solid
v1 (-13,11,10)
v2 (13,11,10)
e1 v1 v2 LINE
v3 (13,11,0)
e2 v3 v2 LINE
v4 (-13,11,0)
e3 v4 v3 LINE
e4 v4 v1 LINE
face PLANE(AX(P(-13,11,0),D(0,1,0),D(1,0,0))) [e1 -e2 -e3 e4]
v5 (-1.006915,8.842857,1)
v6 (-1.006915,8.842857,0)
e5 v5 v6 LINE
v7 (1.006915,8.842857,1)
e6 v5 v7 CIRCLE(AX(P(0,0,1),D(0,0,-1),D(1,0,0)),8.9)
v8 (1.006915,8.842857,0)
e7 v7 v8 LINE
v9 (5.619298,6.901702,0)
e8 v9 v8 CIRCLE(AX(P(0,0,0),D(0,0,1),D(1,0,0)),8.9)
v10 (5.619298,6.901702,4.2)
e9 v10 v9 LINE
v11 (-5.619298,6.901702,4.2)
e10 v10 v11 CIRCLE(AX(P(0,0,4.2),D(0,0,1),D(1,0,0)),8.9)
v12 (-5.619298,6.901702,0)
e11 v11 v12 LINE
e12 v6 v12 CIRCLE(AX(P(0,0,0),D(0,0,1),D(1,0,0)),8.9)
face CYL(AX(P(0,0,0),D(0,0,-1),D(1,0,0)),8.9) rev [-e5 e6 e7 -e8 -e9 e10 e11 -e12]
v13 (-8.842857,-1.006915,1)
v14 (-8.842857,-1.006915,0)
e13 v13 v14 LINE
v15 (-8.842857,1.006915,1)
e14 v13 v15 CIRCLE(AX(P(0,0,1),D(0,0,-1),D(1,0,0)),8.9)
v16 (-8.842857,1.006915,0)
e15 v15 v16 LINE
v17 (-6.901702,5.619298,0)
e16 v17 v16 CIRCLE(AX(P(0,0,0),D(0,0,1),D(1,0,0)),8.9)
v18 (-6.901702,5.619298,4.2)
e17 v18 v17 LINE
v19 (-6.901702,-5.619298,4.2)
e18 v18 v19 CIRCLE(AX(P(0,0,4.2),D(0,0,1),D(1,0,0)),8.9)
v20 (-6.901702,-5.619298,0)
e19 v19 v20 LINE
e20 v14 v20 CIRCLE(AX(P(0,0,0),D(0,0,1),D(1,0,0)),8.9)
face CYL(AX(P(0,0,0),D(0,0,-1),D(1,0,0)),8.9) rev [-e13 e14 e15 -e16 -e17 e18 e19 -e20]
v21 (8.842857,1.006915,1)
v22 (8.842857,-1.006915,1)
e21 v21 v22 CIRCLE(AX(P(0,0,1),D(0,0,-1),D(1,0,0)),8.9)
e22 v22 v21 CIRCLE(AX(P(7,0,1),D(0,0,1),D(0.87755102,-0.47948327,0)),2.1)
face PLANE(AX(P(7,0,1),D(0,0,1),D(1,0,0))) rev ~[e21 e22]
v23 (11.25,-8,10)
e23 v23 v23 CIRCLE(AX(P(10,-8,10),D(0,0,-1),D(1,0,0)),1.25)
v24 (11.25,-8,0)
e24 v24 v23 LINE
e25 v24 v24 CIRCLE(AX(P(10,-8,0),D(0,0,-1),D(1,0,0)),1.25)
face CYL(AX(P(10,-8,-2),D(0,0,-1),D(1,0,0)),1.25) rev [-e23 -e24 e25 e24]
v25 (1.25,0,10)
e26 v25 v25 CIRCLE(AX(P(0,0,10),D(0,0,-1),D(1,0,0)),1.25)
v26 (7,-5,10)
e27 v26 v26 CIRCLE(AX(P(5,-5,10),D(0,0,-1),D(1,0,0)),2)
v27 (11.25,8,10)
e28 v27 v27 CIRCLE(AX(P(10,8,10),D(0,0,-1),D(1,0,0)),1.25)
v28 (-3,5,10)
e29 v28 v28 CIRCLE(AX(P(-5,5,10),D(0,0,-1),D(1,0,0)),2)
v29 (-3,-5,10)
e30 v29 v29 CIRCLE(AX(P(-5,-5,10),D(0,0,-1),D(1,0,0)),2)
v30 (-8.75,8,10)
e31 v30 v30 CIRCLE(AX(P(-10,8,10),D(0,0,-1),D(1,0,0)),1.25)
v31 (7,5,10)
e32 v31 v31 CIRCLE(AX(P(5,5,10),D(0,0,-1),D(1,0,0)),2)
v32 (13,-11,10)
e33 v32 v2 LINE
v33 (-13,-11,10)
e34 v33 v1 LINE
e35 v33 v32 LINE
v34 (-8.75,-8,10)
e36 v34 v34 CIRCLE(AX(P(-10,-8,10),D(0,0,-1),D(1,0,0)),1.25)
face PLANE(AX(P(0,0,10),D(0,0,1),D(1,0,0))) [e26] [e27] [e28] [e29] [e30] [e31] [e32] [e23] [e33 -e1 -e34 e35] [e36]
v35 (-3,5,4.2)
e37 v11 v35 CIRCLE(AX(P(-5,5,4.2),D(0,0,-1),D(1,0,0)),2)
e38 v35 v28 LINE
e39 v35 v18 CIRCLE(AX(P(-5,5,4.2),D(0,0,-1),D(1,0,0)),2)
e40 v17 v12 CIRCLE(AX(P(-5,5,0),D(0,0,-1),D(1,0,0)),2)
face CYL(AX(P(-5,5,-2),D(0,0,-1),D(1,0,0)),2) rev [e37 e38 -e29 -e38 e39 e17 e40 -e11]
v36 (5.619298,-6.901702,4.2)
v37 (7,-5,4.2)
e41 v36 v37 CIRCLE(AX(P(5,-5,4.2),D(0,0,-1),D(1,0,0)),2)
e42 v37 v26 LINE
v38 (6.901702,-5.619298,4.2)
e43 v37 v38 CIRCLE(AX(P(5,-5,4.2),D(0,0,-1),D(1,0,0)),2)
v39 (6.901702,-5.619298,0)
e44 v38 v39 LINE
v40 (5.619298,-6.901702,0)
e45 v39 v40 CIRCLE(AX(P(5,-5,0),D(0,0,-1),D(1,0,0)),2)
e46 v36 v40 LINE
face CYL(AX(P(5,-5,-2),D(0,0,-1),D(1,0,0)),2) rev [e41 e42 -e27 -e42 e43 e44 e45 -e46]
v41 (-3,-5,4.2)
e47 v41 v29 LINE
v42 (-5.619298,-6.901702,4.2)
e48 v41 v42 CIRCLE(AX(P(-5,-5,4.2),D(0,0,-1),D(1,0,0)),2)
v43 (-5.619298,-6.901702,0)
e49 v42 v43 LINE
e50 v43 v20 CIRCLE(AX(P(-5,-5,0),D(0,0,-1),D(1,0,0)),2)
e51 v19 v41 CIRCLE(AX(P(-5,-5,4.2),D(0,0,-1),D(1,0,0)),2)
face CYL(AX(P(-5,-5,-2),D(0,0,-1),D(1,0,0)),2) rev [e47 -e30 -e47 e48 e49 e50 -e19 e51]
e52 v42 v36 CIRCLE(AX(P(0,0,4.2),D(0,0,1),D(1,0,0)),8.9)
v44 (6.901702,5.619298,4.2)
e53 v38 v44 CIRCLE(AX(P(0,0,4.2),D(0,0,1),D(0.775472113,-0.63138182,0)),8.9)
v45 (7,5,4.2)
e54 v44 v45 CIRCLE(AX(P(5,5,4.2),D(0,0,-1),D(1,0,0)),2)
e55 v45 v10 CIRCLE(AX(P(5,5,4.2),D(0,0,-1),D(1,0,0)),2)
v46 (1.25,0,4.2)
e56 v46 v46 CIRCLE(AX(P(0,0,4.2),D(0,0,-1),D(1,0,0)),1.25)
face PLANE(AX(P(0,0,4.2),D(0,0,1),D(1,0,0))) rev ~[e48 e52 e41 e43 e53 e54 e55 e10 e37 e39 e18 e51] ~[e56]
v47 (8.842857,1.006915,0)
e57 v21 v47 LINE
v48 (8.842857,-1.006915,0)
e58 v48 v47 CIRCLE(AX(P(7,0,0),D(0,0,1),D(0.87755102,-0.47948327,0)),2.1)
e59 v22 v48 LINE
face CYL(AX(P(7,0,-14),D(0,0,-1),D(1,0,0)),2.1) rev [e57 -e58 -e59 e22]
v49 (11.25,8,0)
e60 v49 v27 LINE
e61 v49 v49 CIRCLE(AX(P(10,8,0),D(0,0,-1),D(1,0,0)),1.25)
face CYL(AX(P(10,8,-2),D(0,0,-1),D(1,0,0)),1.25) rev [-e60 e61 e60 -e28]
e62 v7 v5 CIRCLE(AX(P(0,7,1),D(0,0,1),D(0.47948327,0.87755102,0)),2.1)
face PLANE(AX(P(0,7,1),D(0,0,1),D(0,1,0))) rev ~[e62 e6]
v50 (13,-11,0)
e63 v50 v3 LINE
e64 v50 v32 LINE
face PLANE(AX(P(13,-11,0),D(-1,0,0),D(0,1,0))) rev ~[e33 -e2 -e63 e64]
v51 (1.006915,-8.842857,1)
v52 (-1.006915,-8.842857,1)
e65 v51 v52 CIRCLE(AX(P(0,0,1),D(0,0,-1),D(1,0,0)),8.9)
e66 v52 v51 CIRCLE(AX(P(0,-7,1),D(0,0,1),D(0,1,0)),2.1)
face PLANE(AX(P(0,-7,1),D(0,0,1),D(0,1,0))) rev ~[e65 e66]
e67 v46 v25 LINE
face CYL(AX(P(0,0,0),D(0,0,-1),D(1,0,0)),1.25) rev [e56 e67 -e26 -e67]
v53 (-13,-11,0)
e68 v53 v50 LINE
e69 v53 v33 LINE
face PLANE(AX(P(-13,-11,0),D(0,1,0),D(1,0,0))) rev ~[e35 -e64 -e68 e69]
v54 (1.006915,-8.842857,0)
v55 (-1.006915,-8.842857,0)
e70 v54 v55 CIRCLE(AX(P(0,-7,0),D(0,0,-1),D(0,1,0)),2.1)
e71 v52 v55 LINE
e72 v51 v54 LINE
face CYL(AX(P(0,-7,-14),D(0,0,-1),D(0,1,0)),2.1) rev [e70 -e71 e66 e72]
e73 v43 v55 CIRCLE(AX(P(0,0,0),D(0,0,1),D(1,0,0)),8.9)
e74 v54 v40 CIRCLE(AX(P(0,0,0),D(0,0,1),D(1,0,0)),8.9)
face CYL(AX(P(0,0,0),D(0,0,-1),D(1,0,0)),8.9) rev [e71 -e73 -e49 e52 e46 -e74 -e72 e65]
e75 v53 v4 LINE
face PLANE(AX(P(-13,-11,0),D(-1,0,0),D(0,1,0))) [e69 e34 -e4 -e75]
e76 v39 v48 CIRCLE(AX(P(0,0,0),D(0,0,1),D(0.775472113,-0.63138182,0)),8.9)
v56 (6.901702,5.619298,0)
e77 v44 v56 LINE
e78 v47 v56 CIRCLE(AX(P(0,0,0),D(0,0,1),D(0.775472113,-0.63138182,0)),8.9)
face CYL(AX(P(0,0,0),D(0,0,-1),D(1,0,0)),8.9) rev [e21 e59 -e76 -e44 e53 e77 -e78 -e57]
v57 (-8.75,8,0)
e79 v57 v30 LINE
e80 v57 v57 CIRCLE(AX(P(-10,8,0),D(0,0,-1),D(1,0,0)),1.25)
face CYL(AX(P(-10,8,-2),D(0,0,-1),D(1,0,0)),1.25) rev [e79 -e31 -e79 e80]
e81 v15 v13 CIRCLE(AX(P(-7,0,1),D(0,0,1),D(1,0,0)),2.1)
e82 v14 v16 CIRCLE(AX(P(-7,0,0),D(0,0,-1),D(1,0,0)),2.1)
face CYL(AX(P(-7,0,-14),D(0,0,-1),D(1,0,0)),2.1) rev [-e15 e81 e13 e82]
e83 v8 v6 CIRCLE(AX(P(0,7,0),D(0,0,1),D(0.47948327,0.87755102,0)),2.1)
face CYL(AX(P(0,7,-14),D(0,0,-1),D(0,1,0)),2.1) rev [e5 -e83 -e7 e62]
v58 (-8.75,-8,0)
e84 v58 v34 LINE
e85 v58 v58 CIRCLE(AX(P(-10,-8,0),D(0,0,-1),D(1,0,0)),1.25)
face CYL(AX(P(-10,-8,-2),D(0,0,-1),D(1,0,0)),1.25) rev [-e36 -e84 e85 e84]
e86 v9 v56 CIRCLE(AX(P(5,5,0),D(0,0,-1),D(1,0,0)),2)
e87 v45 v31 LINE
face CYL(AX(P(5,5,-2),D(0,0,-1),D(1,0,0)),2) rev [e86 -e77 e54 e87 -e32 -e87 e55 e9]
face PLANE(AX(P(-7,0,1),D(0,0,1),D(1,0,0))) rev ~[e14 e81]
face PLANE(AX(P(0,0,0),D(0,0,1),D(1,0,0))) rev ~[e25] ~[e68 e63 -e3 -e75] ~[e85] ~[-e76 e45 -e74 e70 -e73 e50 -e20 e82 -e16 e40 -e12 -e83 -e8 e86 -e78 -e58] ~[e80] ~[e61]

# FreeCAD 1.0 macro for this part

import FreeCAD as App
import Part
import Sketcher

V = App.Vector
Q = App.Units.Quantity

doc = App.newDocument("Part")
body = doc.addObject("PartDesign::Body", "Body")

sketch1 = body.newObject("Sketcher::SketchObject", "Sketch")
sketch1.AttachmentSupport = (doc.getObject("XY_Plane"), [""])
sketch1.MapMode = "FlatFace"
sketch1.addGeometry(Part.Circle(V(7, 0, 0), V(0, 0, 1), 2.1), False)
sketch1.addConstraint(Sketcher.Constraint("PointOnObject", 0, 3, -1))
sketch1.addConstraint(Sketcher.Constraint("Diameter", 0, Q("4.2 mm")))
sketch1.addConstraint(Sketcher.Constraint("DistanceX", -1, 1, 0, 3, Q("7 mm")))
pad1 = body.newObject("PartDesign::Pad", "Pad")
pad1.Profile = sketch1
pad1.Length = 15
body2 = doc.addObject("PartDesign::Body", "Body001")
body2.AllowCompound = True

sketch2 = body2.newObject("Sketcher::SketchObject", "Sketch001")
sketch2.AttachmentSupport = (doc.getObject("XY_Plane001"), [""])
sketch2.MapMode = "FlatFace"
sketch2.addGeometry(Part.Circle(V(-7, 0, 0), V(0, 0, 1), 2.1), False)
sketch2.addConstraint(Sketcher.Constraint("PointOnObject", 0, 3, -1))
sketch2.addConstraint(Sketcher.Constraint("Diameter", 0, Q("4.2 mm")))
sketch2.addConstraint(Sketcher.Constraint("DistanceX", 0, 3, -1, 1, Q("7 mm")))
pad2 = body2.newObject("PartDesign::Pad", "Pad001")
pad2.Profile = sketch2
pad2.Length = 15
doc.recompute()

boolean = body2.newObject("PartDesign::Boolean", "Boolean")
boolean.Type = "Fuse"
boolean.addObjects([body])
body3 = doc.addObject("PartDesign::Body", "Body002")

sketch3 = body3.newObject("Sketcher::SketchObject", "Sketch002")
sketch3.AttachmentSupport = (doc.getObject("XY_Plane002"), [""])
sketch3.MapMode = "FlatFace"
sketch3.addGeometry(Part.Circle(V(7, 0, 0), V(0, 0, 1), 2.1), False)
sketch3.addConstraint(Sketcher.Constraint("PointOnObject", 0, 3, -1))
sketch3.addConstraint(Sketcher.Constraint("Diameter", 0, Q("4.2 mm")))
sketch3.addConstraint(Sketcher.Constraint("DistanceX", -1, 1, 0, 3, Q("7 mm")))
pad3 = body3.newObject("PartDesign::Pad", "Pad002")
pad3.Profile = sketch3
pad3.Length = 15
body4 = doc.addObject("PartDesign::Body", "Body003")
body4.AllowCompound = True

sketch4 = body4.newObject("Sketcher::SketchObject", "Sketch003")
sketch4.AttachmentSupport = (doc.getObject("XY_Plane003"), [""])
sketch4.MapMode = "FlatFace"
sketch4.addGeometry(Part.Circle(V(-7, 0, 0), V(0, 0, 1), 2.1), False)
sketch4.addConstraint(Sketcher.Constraint("PointOnObject", 0, 3, -1))
sketch4.addConstraint(Sketcher.Constraint("Diameter", 0, Q("4.2 mm")))
sketch4.addConstraint(Sketcher.Constraint("DistanceX", 0, 3, -1, 1, Q("7 mm")))
pad4 = body4.newObject("PartDesign::Pad", "Pad003")
pad4.Profile = sketch4
pad4.Length = 15
doc.recompute()

boolean2 = body4.newObject("PartDesign::Boolean", "Boolean001")
boolean2.Type = "Fuse"
boolean2.addObjects([body3])
body5 = doc.addObject("PartDesign::Body", "Body004")
body5.AllowCompound = True
doc.recompute()

body4.Placement = App.Placement(V(0, 0, 0), App.Rotation(V(0, 0, 1), 90))
boolean3 = body5.newObject("PartDesign::Boolean", "Boolean002")
boolean3.Type = "Fuse"
boolean3.addObjects([body4])
doc.recompute()

boolean4 = body5.newObject("PartDesign::Boolean", "Boolean003")
boolean4.Type = "Fuse"
boolean4.addObjects([body2])
body6 = doc.addObject("PartDesign::Body", "Body005")
body6.AllowCompound = True
doc.recompute()

body5.Placement = App.Placement(V(0, 0, -14), App.Rotation(V(0, 0, 1), 0))
boolean5 = body6.newObject("PartDesign::Boolean", "Boolean004")
boolean5.Type = "Fuse"
boolean5.addObjects([body5])
body7 = doc.addObject("PartDesign::Body", "Body006")

sketch5 = body7.newObject("Sketcher::SketchObject", "Sketch004")
sketch5.AttachmentSupport = (doc.getObject("XY_Plane006"), [""])
sketch5.MapMode = "FlatFace"
sketch5.AttachmentOffset = App.Placement(V(0, 0, -2), App.Rotation())
sketch5.addGeometry(Part.Circle(V(5, 5, 0), V(0, 0, 1), 2), False)
sketch5.addConstraint(Sketcher.Constraint("Diameter", 0, Q("4 mm")))
sketch5.addConstraint(Sketcher.Constraint("DistanceX", -1, 1, 0, 3, Q("5 mm")))
sketch5.addConstraint(Sketcher.Constraint("DistanceY", -1, 1, 0, 3, Q("5 mm")))
pad5 = body7.newObject("PartDesign::Pad", "Pad004")
pad5.Profile = sketch5
pad5.Length = 15
body8 = doc.addObject("PartDesign::Body", "Body007")

sketch6 = body8.newObject("Sketcher::SketchObject", "Sketch005")
sketch6.AttachmentSupport = (doc.getObject("XY_Plane007"), [""])
sketch6.MapMode = "FlatFace"
sketch6.AttachmentOffset = App.Placement(V(0, 0, -2), App.Rotation())
sketch6.addGeometry(Part.Circle(V(5, -5, 0), V(0, 0, 1), 2), False)
sketch6.addConstraint(Sketcher.Constraint("Diameter", 0, Q("4 mm")))
sketch6.addConstraint(Sketcher.Constraint("DistanceX", -1, 1, 0, 3, Q("5 mm")))
sketch6.addConstraint(Sketcher.Constraint("DistanceY", 0, 3, -1, 1, Q("5 mm")))
pad6 = body8.newObject("PartDesign::Pad", "Pad005")
pad6.Profile = sketch6
pad6.Length = 15
body9 = doc.addObject("PartDesign::Body", "Body008")

sketch7 = body9.newObject("Sketcher::SketchObject", "Sketch006")
sketch7.AttachmentSupport = (doc.getObject("XY_Plane008"), [""])
sketch7.MapMode = "FlatFace"
sketch7.AttachmentOffset = App.Placement(V(0, 0, -2), App.Rotation())
sketch7.addGeometry(Part.Circle(V(-5, -5, 0), V(0, 0, 1), 2), False)
sketch7.addConstraint(Sketcher.Constraint("Diameter", 0, Q("4 mm")))
sketch7.addConstraint(Sketcher.Constraint("DistanceX", 0, 3, -1, 1, Q("5 mm")))
sketch7.addConstraint(Sketcher.Constraint("DistanceY", 0, 3, -1, 1, Q("5 mm")))
pad7 = body9.newObject("PartDesign::Pad", "Pad006")
pad7.Profile = sketch7
pad7.Length = 15
body10 = doc.addObject("PartDesign::Body", "Body009")
body10.AllowCompound = True

sketch8 = body10.newObject("Sketcher::SketchObject", "Sketch007")
sketch8.AttachmentSupport = (doc.getObject("XY_Plane009"), [""])
sketch8.MapMode = "FlatFace"
sketch8.AttachmentOffset = App.Placement(V(0, 0, -2), App.Rotation())
sketch8.addGeometry(Part.Circle(V(-5, 5, 0), V(0, 0, 1), 2), False)
sketch8.addConstraint(Sketcher.Constraint("Diameter", 0, Q("4 mm")))
sketch8.addConstraint(Sketcher.Constraint("DistanceX", 0, 3, -1, 1, Q("5 mm")))
sketch8.addConstraint(Sketcher.Constraint("DistanceY", -1, 1, 0, 3, Q("5 mm")))
pad8 = body10.newObject("PartDesign::Pad", "Pad007")
pad8.Profile = sketch8
pad8.Length = 15
doc.recompute()

boolean6 = body10.newObject("PartDesign::Boolean", "Boolean005")
boolean6.Type = "Fuse"
boolean6.addObjects([body7])
doc.recompute()

boolean7 = body10.newObject("PartDesign::Boolean", "Boolean006")
boolean7.Type = "Fuse"
boolean7.addObjects([body8])
doc.recompute()

boolean8 = body10.newObject("PartDesign::Boolean", "Boolean007")
boolean8.Type = "Fuse"
boolean8.addObjects([body9])
body11 = doc.addObject("PartDesign::Body", "Body010")

sketch9 = body11.newObject("Sketcher::SketchObject", "Sketch008")
sketch9.AttachmentSupport = (doc.getObject("XY_Plane010"), [""])
sketch9.MapMode = "FlatFace"
sketch9.AttachmentOffset = App.Placement(V(0, 0, -2), App.Rotation())
sketch9.addGeometry(Part.Circle(V(10, -8, 0), V(0, 0, 1), 1.2), False)
sketch9.addConstraint(Sketcher.Constraint("Diameter", 0, Q("2.5 mm")))
sketch9.addConstraint(Sketcher.Constraint("DistanceX", -1, 1, 0, 3, Q("10 mm")))
sketch9.addConstraint(Sketcher.Constraint("DistanceY", 0, 3, -1, 1, Q("8 mm")))
pad9 = body11.newObject("PartDesign::Pad", "Pad008")
pad9.Profile = sketch9
pad9.Length = 15
body12 = doc.addObject("PartDesign::Body", "Body011")

sketch10 = body12.newObject("Sketcher::SketchObject", "Sketch009")
sketch10.AttachmentSupport = (doc.getObject("XY_Plane011"), [""])
sketch10.MapMode = "FlatFace"
sketch10.AttachmentOffset = App.Placement(V(0, 0, -2), App.Rotation())
sketch10.addGeometry(Part.Circle(V(10, 8, 0), V(0, 0, 1), 1.2), False)
sketch10.addConstraint(Sketcher.Constraint("Diameter", 0, Q("2.5 mm")))
sketch10.addConstraint(Sketcher.Constraint("DistanceX", -1, 1, 0, 3, Q("10 mm")))
sketch10.addConstraint(Sketcher.Constraint("DistanceY", -1, 1, 0, 3, Q("8 mm")))
pad10 = body12.newObject("PartDesign::Pad", "Pad009")
pad10.Profile = sketch10
pad10.Length = 15
body13 = doc.addObject("PartDesign::Body", "Body012")

sketch11 = body13.newObject("Sketcher::SketchObject", "Sketch010")
sketch11.AttachmentSupport = (doc.getObject("XY_Plane012"), [""])
sketch11.MapMode = "FlatFace"
sketch11.AttachmentOffset = App.Placement(V(0, 0, -2), App.Rotation())
sketch11.addGeometry(Part.Circle(V(-10, -8, 0), V(0, 0, 1), 1.2), False)
sketch11.addConstraint(Sketcher.Constraint("Diameter", 0, Q("2.5 mm")))
sketch11.addConstraint(Sketcher.Constraint("DistanceX", 0, 3, -1, 1, Q("10 mm")))
sketch11.addConstraint(Sketcher.Constraint("DistanceY", 0, 3, -1, 1, Q("8 mm")))
pad11 = body13.newObject("PartDesign::Pad", "Pad010")
pad11.Profile = sketch11
pad11.Length = 15
body14 = doc.addObject("PartDesign::Body", "Body013")
body14.AllowCompound = True

sketch12 = body14.newObject("Sketcher::SketchObject", "Sketch011")
sketch12.AttachmentSupport = (doc.getObject("XY_Plane013"), [""])
sketch12.MapMode = "FlatFace"
sketch12.AttachmentOffset = App.Placement(V(0, 0, -2), App.Rotation())
sketch12.addGeometry(Part.Circle(V(-10, 8, 0), V(0, 0, 1), 1.2), False)
sketch12.addConstraint(Sketcher.Constraint("Diameter", 0, Q("2.5 mm")))
sketch12.addConstraint(Sketcher.Constraint("DistanceX", 0, 3, -1, 1, Q("10 mm")))
sketch12.addConstraint(Sketcher.Constraint("DistanceY", -1, 1, 0, 3, Q("8 mm")))
pad12 = body14.newObject("PartDesign::Pad", "Pad011")
pad12.Profile = sketch12
pad12.Length = 15
doc.recompute()

boolean9 = body14.newObject("PartDesign::Boolean", "Boolean008")
boolean9.Type = "Fuse"
boolean9.addObjects([body11])
doc.recompute()

boolean10 = body14.newObject("PartDesign::Boolean", "Boolean009")
boolean10.Type = "Fuse"
boolean10.addObjects([body12])
doc.recompute()

boolean11 = body14.newObject("PartDesign::Boolean", "Boolean010")
boolean11.Type = "Fuse"
boolean11.addObjects([body13])
body15 = doc.addObject("PartDesign::Body", "Body014")

sketch13 = body15.newObject("Sketcher::SketchObject", "Sketch012")
sketch13.AttachmentSupport = (doc.getObject("XY_Plane014"), [""])
sketch13.MapMode = "FlatFace"
sketch13.addGeometry(Part.Circle(V(0, 0, 0), V(0, 0, 1), 9), False)
sketch13.addConstraint(Sketcher.Constraint("Coincident", 0, 3, -1, 1))
sketch13.addConstraint(Sketcher.Constraint("Diameter", 0, Q("17.8 mm")))
pad13 = body15.newObject("PartDesign::Pad", "Pad012")
pad13.Profile = sketch13
pad13.Length = 4.2
body16 = doc.addObject("PartDesign::Body", "Body015")

sketch14 = body16.newObject("Sketcher::SketchObject", "Sketch013")
sketch14.AttachmentSupport = (doc.getObject("XY_Plane015"), [""])
sketch14.MapMode = "FlatFace"
sketch14.addGeometry(Part.Circle(V(0, 0, 0), V(0, 0, 1), 1.2), False)
sketch14.addConstraint(Sketcher.Constraint("Coincident", 0, 3, -1, 1))
sketch14.addConstraint(Sketcher.Constraint("Diameter", 0, Q("2.5 mm")))
pad14 = body16.newObject("PartDesign::Pad", "Pad013")
pad14.Profile = sketch14
pad14.Length = 12
doc.recompute()

boolean12 = body16.newObject("PartDesign::Boolean", "Boolean011")
boolean12.Type = "Fuse"
boolean12.addObjects([body15])
body17 = doc.addObject("PartDesign::Body", "Body016")

sketch15 = body17.newObject("Sketcher::SketchObject", "Sketch014")
sketch15.AttachmentSupport = (doc.getObject("XY_Plane016"), [""])
sketch15.MapMode = "FlatFace"
sketch15.addGeometry(Part.LineSegment(V(-13, 11, 0), V(-13, -11, 0)), False)
sketch15.addGeometry(Part.LineSegment(V(-13, -11, 0), V(13, -11, 0)), False)
sketch15.addGeometry(Part.LineSegment(V(13, -11, 0), V(13, 11, 0)), False)
sketch15.addGeometry(Part.LineSegment(V(13, 11, 0), V(-13, 11, 0)), False)
sketch15.addConstraint(Sketcher.Constraint("Coincident", 0, 2, 1, 1))
sketch15.addConstraint(Sketcher.Constraint("Coincident", 1, 2, 2, 1))
sketch15.addConstraint(Sketcher.Constraint("Coincident", 2, 2, 3, 1))
sketch15.addConstraint(Sketcher.Constraint("Coincident", 3, 2, 0, 1))
sketch15.addConstraint(Sketcher.Constraint("Vertical", 0))
sketch15.addConstraint(Sketcher.Constraint("Horizontal", 1))
sketch15.addConstraint(Sketcher.Constraint("Vertical", 2))
sketch15.addConstraint(Sketcher.Constraint("Horizontal", 3))
sketch15.addConstraint(Sketcher.Constraint("Symmetric", 0, 2, 2, 2, -1, 1))
sketch15.addConstraint(Sketcher.Constraint("DistanceX", 1, 1, 1, 2, Q("26 mm")))
sketch15.addConstraint(Sketcher.Constraint("DistanceY", 0, 2, 0, 1, Q("22 mm")))
pad15 = body17.newObject("PartDesign::Pad", "Pad014")
pad15.Profile = sketch15
pad15.Length = 10
doc.recompute()

boolean13 = body17.newObject("PartDesign::Boolean", "Boolean012")
boolean13.Type = "Cut"
boolean13.addObjects([body16])
doc.recompute()

boolean14 = body17.newObject("PartDesign::Boolean", "Boolean013")
boolean14.Type = "Cut"
boolean14.addObjects([body14])
doc.recompute()

boolean15 = body17.newObject("PartDesign::Boolean", "Boolean014")
boolean15.Type = "Cut"
boolean15.addObjects([body10])
doc.recompute()

boolean16 = body17.newObject("PartDesign::Boolean", "Boolean015")
boolean16.Type = "Cut"
boolean16.addObjects([body6])

doc.recompute()
